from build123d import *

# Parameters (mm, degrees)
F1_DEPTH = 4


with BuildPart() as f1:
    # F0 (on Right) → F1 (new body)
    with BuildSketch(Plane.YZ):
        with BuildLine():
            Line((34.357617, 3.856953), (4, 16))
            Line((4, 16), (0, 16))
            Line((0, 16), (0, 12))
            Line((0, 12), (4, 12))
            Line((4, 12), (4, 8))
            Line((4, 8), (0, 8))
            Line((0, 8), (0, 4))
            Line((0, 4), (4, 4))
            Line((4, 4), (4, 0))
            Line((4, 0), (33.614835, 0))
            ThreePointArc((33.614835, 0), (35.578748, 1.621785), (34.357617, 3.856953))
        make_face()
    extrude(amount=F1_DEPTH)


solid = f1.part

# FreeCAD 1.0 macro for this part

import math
import FreeCAD as App
import Part
import Sketcher

V = App.Vector
Q = App.Units.Quantity

doc = App.newDocument("Part")
body = doc.addObject("PartDesign::Body", "Body")

# Sketch on YZ plane
sketch1 = body.newObject("Sketcher::SketchObject", "Sketch")
sketch1.AttachmentSupport = (doc.getObject("YZ_Plane"), [""])
sketch1.MapMode = "FlatFace"
sketch1.addGeometry([
    Part.LineSegment(V(34.4, 3.9, 0), V(4, 16, 0)),  # 0
    Part.LineSegment(V(4, 16, 0), V(0, 16, 0)),  # 1
    Part.LineSegment(V(0, 16, 0), V(0, 12, 0)),  # 2
    Part.LineSegment(V(0, 12, 0), V(4, 12, 0)),  # 3
    Part.LineSegment(V(4, 12, 0), V(4, 8, 0)),  # 4
    Part.LineSegment(V(4, 8, 0), V(0, 8, 0)),  # 5
    Part.LineSegment(V(0, 8, 0), V(0, 4, 0)),  # 6
    Part.LineSegment(V(0, 4, 0), V(4, 4, 0)),  # 7
    Part.LineSegment(V(4, 4, 0), V(4, 0, 0)),  # 8
    Part.LineSegment(V(4, 0, 0), V(33.6, 0, 0)),  # 9
    Part.ArcOfCircle(Part.Circle(V(33.6, 2, 0), V(0, 0, 1), 2), math.radians(-90), math.radians(68)),  # 10
], False)
sketch1.addConstraint([
    Sketcher.Constraint("Coincident", 0, 2, 1, 1),
    Sketcher.Constraint("Coincident", 1, 2, 2, 1),
    Sketcher.Constraint("Coincident", 2, 2, 3, 1),
    Sketcher.Constraint("Coincident", 3, 2, 4, 1),
    Sketcher.Constraint("Coincident", 4, 2, 5, 1),
    Sketcher.Constraint("Coincident", 5, 2, 6, 1),
    Sketcher.Constraint("Coincident", 6, 2, 7, 1),
    Sketcher.Constraint("Coincident", 7, 2, 8, 1),
    Sketcher.Constraint("Coincident", 8, 2, 9, 1),
    Sketcher.Constraint("Tangent", 9, 2, 10, 1),
    Sketcher.Constraint("Tangent", 10, 2, 0, 1),
    Sketcher.Constraint("Horizontal", 1),
    Sketcher.Constraint("Vertical", 2),
    Sketcher.Constraint("Horizontal", 3),
    Sketcher.Constraint("Vertical", 4),
    Sketcher.Constraint("Horizontal", 5),
    Sketcher.Constraint("Vertical", 6),
    Sketcher.Constraint("Horizontal", 7),
    Sketcher.Constraint("Vertical", 8),
    Sketcher.Constraint("Horizontal", 9),
    Sketcher.Constraint("PointOnObject", 1, 2, -2),
    Sketcher.Constraint("PointOnObject", 5, 2, -2),
    Sketcher.Constraint("PointOnObject", 8, 2, -1),
    Sketcher.Constraint("Vertical", 0, 2, 3, 2),
    Sketcher.Constraint("Vertical", 4, 2, 7, 2),
    Sketcher.Constraint("Equal", 7, 2),
    Sketcher.Constraint("Equal", 2, 4),
    Sketcher.Constraint("Equal", 4, 6),
    Sketcher.Constraint("Equal", 6, 8),
    Sketcher.Constraint("Radius", 10, Q("2 mm")),
    Sketcher.Constraint("DistanceX", 1, 2, 1, 1, Q("4 mm")),
    Sketcher.Constraint("DistanceX", 9, 1, 9, 2, Q("29.614835 mm")),
])
pad1 = body.newObject("PartDesign::Pad", "Pad")
pad1.Profile = sketch1
pad1.Length = 4

doc.recompute()
